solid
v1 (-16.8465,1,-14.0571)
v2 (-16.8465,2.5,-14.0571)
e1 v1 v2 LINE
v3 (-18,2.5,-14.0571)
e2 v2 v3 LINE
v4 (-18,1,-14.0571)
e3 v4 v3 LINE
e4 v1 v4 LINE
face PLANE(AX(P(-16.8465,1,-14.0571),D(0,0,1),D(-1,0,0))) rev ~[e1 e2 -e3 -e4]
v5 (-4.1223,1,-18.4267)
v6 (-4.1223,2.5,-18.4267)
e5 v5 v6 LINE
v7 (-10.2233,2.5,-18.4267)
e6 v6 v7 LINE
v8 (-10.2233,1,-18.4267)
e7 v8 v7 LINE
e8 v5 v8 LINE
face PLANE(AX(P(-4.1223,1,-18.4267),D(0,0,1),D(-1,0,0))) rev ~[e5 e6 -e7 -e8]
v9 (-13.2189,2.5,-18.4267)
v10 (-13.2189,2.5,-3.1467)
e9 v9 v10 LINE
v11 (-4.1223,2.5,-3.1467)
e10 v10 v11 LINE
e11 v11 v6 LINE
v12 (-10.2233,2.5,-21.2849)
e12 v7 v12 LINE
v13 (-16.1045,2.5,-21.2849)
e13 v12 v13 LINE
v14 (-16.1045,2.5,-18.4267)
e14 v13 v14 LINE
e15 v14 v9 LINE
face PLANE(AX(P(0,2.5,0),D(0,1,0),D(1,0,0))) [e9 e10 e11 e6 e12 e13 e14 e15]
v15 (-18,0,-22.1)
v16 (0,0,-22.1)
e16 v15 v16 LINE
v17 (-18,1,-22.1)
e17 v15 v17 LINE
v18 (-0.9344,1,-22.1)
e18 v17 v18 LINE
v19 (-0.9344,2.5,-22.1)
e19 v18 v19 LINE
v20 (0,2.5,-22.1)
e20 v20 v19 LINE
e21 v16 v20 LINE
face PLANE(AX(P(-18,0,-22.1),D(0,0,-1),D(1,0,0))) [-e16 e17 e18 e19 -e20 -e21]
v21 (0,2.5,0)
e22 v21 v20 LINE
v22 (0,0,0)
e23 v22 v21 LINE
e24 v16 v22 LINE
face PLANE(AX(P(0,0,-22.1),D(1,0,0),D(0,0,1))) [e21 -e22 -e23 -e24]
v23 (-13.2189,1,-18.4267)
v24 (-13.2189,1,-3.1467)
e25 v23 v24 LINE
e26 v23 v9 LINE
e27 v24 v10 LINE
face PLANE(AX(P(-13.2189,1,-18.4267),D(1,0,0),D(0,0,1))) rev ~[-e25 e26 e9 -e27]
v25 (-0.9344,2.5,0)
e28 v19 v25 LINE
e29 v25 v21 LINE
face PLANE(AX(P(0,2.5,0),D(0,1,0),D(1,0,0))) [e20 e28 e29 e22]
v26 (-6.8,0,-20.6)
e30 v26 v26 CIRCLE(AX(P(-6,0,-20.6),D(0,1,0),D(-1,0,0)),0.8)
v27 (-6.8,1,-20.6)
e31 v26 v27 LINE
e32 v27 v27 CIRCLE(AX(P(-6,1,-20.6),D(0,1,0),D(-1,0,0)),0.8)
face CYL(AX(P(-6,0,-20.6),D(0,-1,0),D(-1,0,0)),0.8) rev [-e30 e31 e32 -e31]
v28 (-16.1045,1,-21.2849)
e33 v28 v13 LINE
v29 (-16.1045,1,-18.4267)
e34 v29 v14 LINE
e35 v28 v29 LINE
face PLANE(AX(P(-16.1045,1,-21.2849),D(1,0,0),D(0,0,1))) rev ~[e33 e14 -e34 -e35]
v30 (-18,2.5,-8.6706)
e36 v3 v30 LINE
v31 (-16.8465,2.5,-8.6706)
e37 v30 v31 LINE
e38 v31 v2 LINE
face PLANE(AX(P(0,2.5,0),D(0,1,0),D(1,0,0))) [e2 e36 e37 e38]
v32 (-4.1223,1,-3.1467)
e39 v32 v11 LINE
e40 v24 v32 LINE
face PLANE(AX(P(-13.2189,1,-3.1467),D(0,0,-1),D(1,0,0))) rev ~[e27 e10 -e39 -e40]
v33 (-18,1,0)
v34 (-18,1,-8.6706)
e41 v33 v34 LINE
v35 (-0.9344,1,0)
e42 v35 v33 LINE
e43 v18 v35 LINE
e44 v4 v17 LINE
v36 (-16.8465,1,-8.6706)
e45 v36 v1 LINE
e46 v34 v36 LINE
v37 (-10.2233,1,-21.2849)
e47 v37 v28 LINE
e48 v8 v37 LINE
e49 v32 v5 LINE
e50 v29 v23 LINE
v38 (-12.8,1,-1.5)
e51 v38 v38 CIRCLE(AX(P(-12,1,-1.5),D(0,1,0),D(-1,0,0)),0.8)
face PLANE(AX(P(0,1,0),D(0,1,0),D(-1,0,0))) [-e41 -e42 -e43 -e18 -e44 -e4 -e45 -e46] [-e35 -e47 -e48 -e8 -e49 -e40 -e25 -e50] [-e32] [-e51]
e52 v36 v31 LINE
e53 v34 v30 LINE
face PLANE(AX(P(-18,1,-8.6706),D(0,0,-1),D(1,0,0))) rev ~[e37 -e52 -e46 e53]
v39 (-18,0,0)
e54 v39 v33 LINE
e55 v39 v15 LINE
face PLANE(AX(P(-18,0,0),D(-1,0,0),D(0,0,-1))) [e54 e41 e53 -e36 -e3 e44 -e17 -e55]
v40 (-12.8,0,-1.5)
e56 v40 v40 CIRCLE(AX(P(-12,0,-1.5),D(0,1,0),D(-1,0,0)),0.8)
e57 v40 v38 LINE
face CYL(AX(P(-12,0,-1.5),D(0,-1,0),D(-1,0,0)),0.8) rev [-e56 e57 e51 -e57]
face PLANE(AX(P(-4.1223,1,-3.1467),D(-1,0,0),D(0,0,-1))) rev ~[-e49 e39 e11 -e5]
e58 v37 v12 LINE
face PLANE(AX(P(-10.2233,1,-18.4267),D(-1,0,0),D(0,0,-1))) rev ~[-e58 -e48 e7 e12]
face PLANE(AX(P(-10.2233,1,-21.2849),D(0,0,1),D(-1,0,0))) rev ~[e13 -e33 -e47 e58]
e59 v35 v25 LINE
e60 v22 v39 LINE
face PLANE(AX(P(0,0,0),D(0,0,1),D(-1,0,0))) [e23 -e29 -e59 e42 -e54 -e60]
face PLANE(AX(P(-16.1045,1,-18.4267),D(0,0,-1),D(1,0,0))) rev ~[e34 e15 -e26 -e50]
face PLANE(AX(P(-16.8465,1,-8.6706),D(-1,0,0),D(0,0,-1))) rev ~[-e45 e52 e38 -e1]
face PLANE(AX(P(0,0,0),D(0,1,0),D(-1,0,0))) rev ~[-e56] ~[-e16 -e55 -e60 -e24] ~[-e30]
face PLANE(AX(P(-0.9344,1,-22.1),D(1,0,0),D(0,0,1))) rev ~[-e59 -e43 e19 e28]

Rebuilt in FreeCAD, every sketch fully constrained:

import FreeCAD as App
import Part
import Sketcher

V = App.Vector

doc = App.newDocument("Part")
params = doc.addObject("Spreadsheet::Sheet", "Params")
for row, (alias, value) in enumerate([
    ("sketch1_diameter", "1.6 mm"),
    ("sketch1_width", "18 mm"),
    ("sketch1_height", "22.1 mm"),
    ("pad1_length", "1 mm"),
    ("sketch2_height", "22.1 mm"),
    ("sketch2_height2", "15.28 mm"),
    ("pad2_length", "1.5 mm"),
], start=1):
    params.set(f"A{row}", alias)
    params.set(f"B{row}", "=" + value)
    params.setAlias(f"B{row}", alias)

body = doc.addObject("PartDesign::Body", "Body")

# Sketch on XZ plane
sketch1 = body.newObject("Sketcher::SketchObject", "Sketch")
sketch1.AttachmentSupport = (doc.getObject("XZ_Plane"), [""])
sketch1.MapMode = "FlatFace"
sketch1.addGeometry(Part.LineSegment(V(-18, 0, 0), V(0, 0, 0)), False)
sketch1.addGeometry(Part.LineSegment(V(0, 0, 0), V(0, -22.1, 0)), False)
sketch1.addGeometry(Part.LineSegment(V(0, -22.1, 0), V(-18, -22.1, 0)), False)
sketch1.addGeometry(Part.LineSegment(V(-18, -22.1, 0), V(-18, 0, 0)), False)
sketch1.addGeometry(Part.Circle(V(-6, -20.6, 0), V(0, 0, 1), 0.8), False)
sketch1.addGeometry(Part.Circle(V(-12, -1.5, 0), V(0, 0, 1), 0.8), False)
sketch1.addConstraint(Sketcher.Constraint("Coincident", 0, 2, 1, 1))
sketch1.addConstraint(Sketcher.Constraint("Coincident", 1, 2, 2, 1))
sketch1.addConstraint(Sketcher.Constraint("Coincident", 2, 2, 3, 1))
sketch1.addConstraint(Sketcher.Constraint("Coincident", 3, 2, 0, 1))
sketch1.addConstraint(Sketcher.Constraint("Horizontal", 0))
sketch1.addConstraint(Sketcher.Constraint("Vertical", 1))
sketch1.addConstraint(Sketcher.Constraint("Horizontal", 2))
sketch1.addConstraint(Sketcher.Constraint("Vertical", 3))
sketch1.addConstraint(Sketcher.Constraint("Coincident", 0, 2, -1, 1))
sketch1.addConstraint(Sketcher.Constraint("Equal", 4, 5))
sketch1.addConstraint(Sketcher.Constraint("Diameter", 4, 1.6))
sketch1.addConstraint(Sketcher.Constraint("DistanceX", 0, 1, 0, 2, 18.0))
sketch1.addConstraint(Sketcher.Constraint("DistanceY", 1, 2, 1, 1, 22.1))
sketch1.addConstraint(Sketcher.Constraint("DistanceX", 4, 3, -1, 1, 6.0))
sketch1.addConstraint(Sketcher.Constraint("DistanceX", 5, 3, 4, 3, 6.0))
sketch1.addConstraint(Sketcher.Constraint("DistanceY", 5, 3, -1, 1, 1.5))
sketch1.addConstraint(Sketcher.Constraint("DistanceY", 1, 2, 4, 3, 1.5))
sketch1.setExpression("Constraints[10]", "Params.sketch1_diameter")
sketch1.setExpression("Constraints[11]", "Params.sketch1_width")
sketch1.setExpression("Constraints[12]", "Params.sketch1_height")
pad1 = body.newObject("PartDesign::Pad", "Pad")
pad1.Profile = sketch1
pad1.setExpression("Length", "Params.pad1_length")
pad1.Reversed = True

# Sketch on XZ plane
sketch2 = body.newObject("Sketcher::SketchObject", "Sketch001")
sketch2.AttachmentSupport = (doc.getObject("XZ_Plane"), [""])
sketch2.MapMode = "FlatFace"
sketch2.AttachmentOffset = App.Placement(V(0, 0, -1), App.Rotation())
sketch2.addGeometry(Part.LineSegment(V(-13.2189, -18.4267, 0), V(-13.2189, -3.1467, 0)), False)
sketch2.addGeometry(Part.LineSegment(V(-13.2189, -3.1467, 0), V(-4.1223, -3.1467, 0)), False)
sketch2.addGeometry(Part.LineSegment(V(-4.1223, -3.1467, 0), V(-4.1223, -18.4267, 0)), False)
sketch2.addGeometry(Part.LineSegment(V(-4.1223, -18.4267, 0), V(-10.2233, -18.4267, 0)), False)
sketch2.addGeometry(Part.LineSegment(V(-10.2233, -18.4267, 0), V(-10.2233, -21.2849, 0)), False)
sketch2.addGeometry(Part.LineSegment(V(-10.2233, -21.2849, 0), V(-16.1045, -21.2849, 0)), False)
sketch2.addGeometry(Part.LineSegment(V(-16.1045, -21.2849, 0), V(-16.1045, -18.4267, 0)), False)
sketch2.addGeometry(Part.LineSegment(V(-16.1045, -18.4267, 0), V(-13.2189, -18.4267, 0)), False)
sketch2.addGeometry(Part.LineSegment(V(-0.9344, -22.1, 0), V(-0.9344, 0, 0)), False)
sketch2.addGeometry(Part.LineSegment(V(-0.9344, 0, 0), V(0, 0, 0)), False)
sketch2.addGeometry(Part.LineSegment(V(0, 0, 0), V(0, -22.1, 0)), False)
sketch2.addGeometry(Part.LineSegment(V(0, -22.1, 0), V(-0.9344, -22.1, 0)), False)
sketch2.addGeometry(Part.LineSegment(V(-18, -14.0571, 0), V(-18, -8.6706, 0)), False)
sketch2.addGeometry(Part.LineSegment(V(-18, -8.6706, 0), V(-16.8465, -8.6706, 0)), False)
sketch2.addGeometry(Part.LineSegment(V(-16.8465, -8.6706, 0), V(-16.8465, -14.0571, 0)), False)
sketch2.addGeometry(Part.LineSegment(V(-16.8465, -14.0571, 0), V(-18, -14.0571, 0)), False)
sketch2.addConstraint(Sketcher.Constraint("Coincident", 0, 2, 1, 1))
sketch2.addConstraint(Sketcher.Constraint("Coincident", 1, 2, 2, 1))
sketch2.addConstraint(Sketcher.Constraint("Coincident", 2, 2, 3, 1))
sketch2.addConstraint(Sketcher.Constraint("Coincident", 3, 2, 4, 1))
sketch2.addConstraint(Sketcher.Constraint("Coincident", 4, 2, 5, 1))
sketch2.addConstraint(Sketcher.Constraint("Coincident", 5, 2, 6, 1))
sketch2.addConstraint(Sketcher.Constraint("Coincident", 6, 2, 7, 1))
sketch2.addConstraint(Sketcher.Constraint("Coincident", 7, 2, 0, 1))
sketch2.addConstraint(Sketcher.Constraint("Coincident", 8, 2, 9, 1))
sketch2.addConstraint(Sketcher.Constraint("Coincident", 9, 2, 10, 1))
sketch2.addConstraint(Sketcher.Constraint("Coincident", 10, 2, 11, 1))
sketch2.addConstraint(Sketcher.Constraint("Coincident", 11, 2, 8, 1))
sketch2.addConstraint(Sketcher.Constraint("Coincident", 12, 2, 13, 1))
sketch2.addConstraint(Sketcher.Constraint("Coincident", 13, 2, 14, 1))
sketch2.addConstraint(Sketcher.Constraint("Coincident", 14, 2, 15, 1))
sketch2.addConstraint(Sketcher.Constraint("Coincident", 15, 2, 12, 1))
sketch2.addConstraint(Sketcher.Constraint("Vertical", 0))
sketch2.addConstraint(Sketcher.Constraint("Horizontal", 1))
sketch2.addConstraint(Sketcher.Constraint("Vertical", 2))
sketch2.addConstraint(Sketcher.Constraint("Horizontal", 3))
sketch2.addConstraint(Sketcher.Constraint("Vertical", 4))
sketch2.addConstraint(Sketcher.Constraint("Horizontal", 5))
sketch2.addConstraint(Sketcher.Constraint("Vertical", 6))
sketch2.addConstraint(Sketcher.Constraint("Horizontal", 7))
sketch2.addConstraint(Sketcher.Constraint("Vertical", 8))
sketch2.addConstraint(Sketcher.Constraint("Horizontal", 9))
sketch2.addConstraint(Sketcher.Constraint("Vertical", 10))
sketch2.addConstraint(Sketcher.Constraint("Horizontal", 11))
sketch2.addConstraint(Sketcher.Constraint("Vertical", 12))
sketch2.addConstraint(Sketcher.Constraint("Horizontal", 13))
sketch2.addConstraint(Sketcher.Constraint("Vertical", 14))
sketch2.addConstraint(Sketcher.Constraint("Horizontal", 15))
sketch2.addConstraint(Sketcher.Constraint("Coincident", 9, 2, -1, 1))
sketch2.addConstraint(Sketcher.Constraint("Horizontal", 3, 2, 6, 2))
sketch2.addConstraint(Sketcher.Constraint("DistanceY", 8, 1, 8, 2, 22.1))
sketch2.addConstraint(Sketcher.Constraint("DistanceX", 12, 2, -1, 1, 18.0))
sketch2.addConstraint(Sketcher.Constraint("DistanceY", 0, 1, 0, 2, 15.28))
sketch2.addConstraint(Sketcher.Constraint("DistanceX", 3, 2, 3, 1, 6.101))
sketch2.addConstraint(Sketcher.Constraint("DistanceX", 1, 1, 1, 2, 9.0966))
sketch2.addConstraint(Sketcher.Constraint("DistanceX", 5, 2, 5, 1, 5.8812))
sketch2.addConstraint(Sketcher.Constraint("DistanceX", 9, 1, 9, 2, 0.9344))
sketch2.addConstraint(Sketcher.Constraint("DistanceX", 13, 1, 13, 2, 1.1535))
sketch2.addConstraint(Sketcher.Constraint("DistanceY", 4, 2, 4, 1, 2.8582))
sketch2.addConstraint(Sketcher.Constraint("DistanceY", 12, 1, 12, 2, 5.3865))
sketch2.addConstraint(Sketcher.Constraint("DistanceX", 0, 2, -1, 1, 13.219))
sketch2.addConstraint(Sketcher.Constraint("DistanceY", 4, 2, -1, 1, 21.285))
sketch2.addConstraint(Sketcher.Constraint("DistanceY", 14, 2, -1, 1, 14.057))
sketch2.setExpression("Constraints[34]", "Params.sketch2_height")
sketch2.setExpression("Constraints[36]", "Params.sketch2_height2")
pad2 = body.newObject("PartDesign::Pad", "Pad001")
pad2.Profile = sketch2
pad2.setExpression("Length", "Params.pad2_length")
pad2.Reversed = True

doc.recompute()
